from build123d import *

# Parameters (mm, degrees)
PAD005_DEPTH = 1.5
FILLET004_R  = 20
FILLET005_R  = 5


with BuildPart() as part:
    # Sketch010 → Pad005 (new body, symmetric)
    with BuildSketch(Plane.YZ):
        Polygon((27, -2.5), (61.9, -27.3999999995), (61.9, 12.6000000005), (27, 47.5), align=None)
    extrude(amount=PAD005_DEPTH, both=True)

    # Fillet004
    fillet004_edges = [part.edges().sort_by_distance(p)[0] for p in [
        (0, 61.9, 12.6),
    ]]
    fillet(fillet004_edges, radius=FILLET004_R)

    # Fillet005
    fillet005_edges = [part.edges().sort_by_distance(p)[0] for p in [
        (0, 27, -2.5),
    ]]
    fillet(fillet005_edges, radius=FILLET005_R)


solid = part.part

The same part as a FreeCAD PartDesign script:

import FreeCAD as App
import Part
import Sketcher
Q = App.Units.Quantity


def edges_at(feature, points):
    """Names of the edges that pass closest to the given points."""
    edges = feature.Shape.Edges
    near = lambda p: min(range(len(edges)), key=lambda i: edges[i].distToShape(Part.Vertex(*p))[0])
    return sorted({f"Edge{near(p) + 1}" for p in points})


def add_polygon(sketch, points):
    """Adds a closed chain of lines whose ends are joined by coincident constraints."""
    first, n = sketch.GeometryCount, len(points)
    for a, b in zip(points, points[1:] + points[:1]):
        sketch.addGeometry(Part.LineSegment(App.Vector(*a, 0), App.Vector(*b, 0)), False)
    for i in range(n):
        sketch.addConstraint(Sketcher.Constraint("Coincident", first + i, 2, first + (i + 1) % n, 1))

doc = App.newDocument("Part")
body = doc.addObject("PartDesign::Body", "Body")

# Sketch on YZ plane
sketch1 = body.newObject("Sketcher::SketchObject", "Sketch")
sketch1.AttachmentSupport = (doc.getObject("YZ_Plane"), [""])
sketch1.MapMode = "FlatFace"
add_polygon(sketch1, [(27, -2.5), (61.9, -27.4), (61.9, 12.6), (27, 47.5)])  # lines 0-3
sketch1.addConstraint([
    Sketcher.Constraint("Vertical", 1),
    Sketcher.Constraint("Vertical", 3),
    Sketcher.Constraint("DistanceY", 1, 1, 1, 2, 40.0),
    Sketcher.Constraint("DistanceY", 3, 2, 3, 1, 50.0),
    Sketcher.Constraint("Angle", 2, Q("135 deg")),
    Sketcher.Constraint("DistanceX", -1, 1, 2, 2, 27.0),
    Sketcher.Constraint("DistanceX", -1, 1, 0, 2, 61.9),
    Sketcher.Constraint("DistanceY", 0, 2, -1, 1, 27.4),
])
pad1 = body.newObject("PartDesign::Pad", "Pad")
pad1.Profile = sketch1
pad1.Length = 3
pad1.Midplane = True
doc.recompute()

fillet = body.newObject("PartDesign::Fillet", "Fillet")
fillet.Base = (pad1, edges_at(pad1, [(0, 61.9, 12.6)]))
fillet.Radius = 20
doc.recompute()

fillet2 = body.newObject("PartDesign::Fillet", "Fillet001")
fillet2.Base = (fillet, edges_at(fillet, [(0, 27, -2.5)]))
fillet2.Radius = 5

doc.recompute()
